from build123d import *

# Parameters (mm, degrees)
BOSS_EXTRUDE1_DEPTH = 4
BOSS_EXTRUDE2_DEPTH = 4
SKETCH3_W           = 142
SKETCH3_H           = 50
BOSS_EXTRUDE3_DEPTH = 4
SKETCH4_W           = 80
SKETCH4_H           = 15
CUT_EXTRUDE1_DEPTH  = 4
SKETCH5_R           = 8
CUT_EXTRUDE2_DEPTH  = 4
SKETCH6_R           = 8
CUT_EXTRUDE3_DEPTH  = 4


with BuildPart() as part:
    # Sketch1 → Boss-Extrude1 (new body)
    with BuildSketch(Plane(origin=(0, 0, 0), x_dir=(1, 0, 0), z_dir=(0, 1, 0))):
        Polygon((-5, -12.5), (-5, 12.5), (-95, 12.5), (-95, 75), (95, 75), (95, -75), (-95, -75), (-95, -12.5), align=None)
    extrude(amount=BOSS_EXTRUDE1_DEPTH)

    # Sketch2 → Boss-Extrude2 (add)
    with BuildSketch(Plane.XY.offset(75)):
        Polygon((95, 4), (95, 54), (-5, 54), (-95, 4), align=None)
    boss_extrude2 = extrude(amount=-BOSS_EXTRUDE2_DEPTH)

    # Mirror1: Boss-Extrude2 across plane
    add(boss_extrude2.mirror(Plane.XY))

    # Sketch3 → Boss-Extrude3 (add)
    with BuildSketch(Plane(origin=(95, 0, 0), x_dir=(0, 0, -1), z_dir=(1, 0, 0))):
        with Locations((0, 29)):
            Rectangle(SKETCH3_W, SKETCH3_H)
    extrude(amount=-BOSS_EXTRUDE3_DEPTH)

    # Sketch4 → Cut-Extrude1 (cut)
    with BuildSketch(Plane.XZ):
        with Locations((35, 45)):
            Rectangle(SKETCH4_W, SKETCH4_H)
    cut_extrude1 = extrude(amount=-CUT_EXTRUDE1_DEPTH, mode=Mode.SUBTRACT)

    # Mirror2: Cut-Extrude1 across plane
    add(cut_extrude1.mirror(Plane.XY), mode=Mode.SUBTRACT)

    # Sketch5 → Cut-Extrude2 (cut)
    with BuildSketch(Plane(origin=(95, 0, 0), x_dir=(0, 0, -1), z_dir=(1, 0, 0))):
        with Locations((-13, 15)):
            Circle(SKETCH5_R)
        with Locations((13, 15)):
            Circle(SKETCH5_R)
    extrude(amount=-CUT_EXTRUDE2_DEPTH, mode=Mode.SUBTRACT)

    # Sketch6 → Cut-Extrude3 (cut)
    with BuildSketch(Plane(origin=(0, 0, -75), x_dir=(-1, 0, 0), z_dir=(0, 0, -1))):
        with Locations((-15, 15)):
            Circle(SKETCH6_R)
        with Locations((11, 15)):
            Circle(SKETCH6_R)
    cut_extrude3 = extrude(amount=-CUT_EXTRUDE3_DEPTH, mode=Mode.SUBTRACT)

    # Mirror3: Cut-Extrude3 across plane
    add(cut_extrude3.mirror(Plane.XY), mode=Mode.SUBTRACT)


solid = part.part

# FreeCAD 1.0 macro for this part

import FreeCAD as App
import Part
import Sketcher

doc = App.newDocument("Part")
body = doc.addObject("PartDesign::Body", "Body")

# Sketch on XZ plane
sketch1 = body.newObject("Sketcher::SketchObject", "Sketch")
sketch1.AttachmentSupport = (doc.getObject("XZ_Plane"), [""])
sketch1.MapMode = "FlatFace"
sketch1.addGeometry([
    Part.LineSegment(App.Vector(-5, -12.5, 0), App.Vector(-5, 12.5, 0)),  # 0
    Part.LineSegment(App.Vector(-5, 12.5, 0), App.Vector(-95, 12.5, 0)),  # 1
    Part.LineSegment(App.Vector(-95, 12.5, 0), App.Vector(-95, 75, 0)),  # 2
    Part.LineSegment(App.Vector(-95, 75, 0), App.Vector(95, 75, 0)),  # 3
    Part.LineSegment(App.Vector(95, 75, 0), App.Vector(95, -75, 0)),  # 4
    Part.LineSegment(App.Vector(95, -75, 0), App.Vector(-95, -75, 0)),  # 5
    Part.LineSegment(App.Vector(-95, -75, 0), App.Vector(-95, -12.5, 0)),  # 6
    Part.LineSegment(App.Vector(-95, -12.5, 0), App.Vector(-5, -12.5, 0)),  # 7
], False)
sketch1.addConstraint([
    Sketcher.Constraint("Coincident", 0, 2, 1, 1),
    Sketcher.Constraint("Coincident", 1, 2, 2, 1),
    Sketcher.Constraint("Coincident", 2, 2, 3, 1),
    Sketcher.Constraint("Coincident", 3, 2, 4, 1),
    Sketcher.Constraint("Coincident", 4, 2, 5, 1),
    Sketcher.Constraint("Coincident", 5, 2, 6, 1),
    Sketcher.Constraint("Coincident", 6, 2, 7, 1),
    Sketcher.Constraint("Coincident", 7, 2, 0, 1),
    Sketcher.Constraint("Vertical", 0),
    Sketcher.Constraint("Horizontal", 1),
    Sketcher.Constraint("Vertical", 2),
    Sketcher.Constraint("Horizontal", 3),
    Sketcher.Constraint("Vertical", 4),
    Sketcher.Constraint("Horizontal", 5),
    Sketcher.Constraint("Vertical", 6),
    Sketcher.Constraint("Horizontal", 7),
    Sketcher.Constraint("Symmetric", 2, 2, 4, 2, -1, 1),
    Sketcher.Constraint("Symmetric", 1, 2, 6, 2, -1),
    Sketcher.Constraint("DistanceX", 1, 2, 1, 1, 90.0),
    Sketcher.Constraint("DistanceX", 3, 1, 3, 2, 190.0),
    Sketcher.Constraint("DistanceY", 0, 1, 0, 2, 25.0),
    Sketcher.Constraint("DistanceY", 4, 2, 4, 1, 150.0),
])
pad1 = body.newObject("PartDesign::Pad", "Pad")
pad1.Profile = sketch1
pad1.Length = 4
pad1.Reversed = True

# Sketch on XY plane
sketch2 = body.newObject("Sketcher::SketchObject", "Sketch001")
sketch2.AttachmentSupport = (doc.getObject("XY_Plane"), [""])
sketch2.MapMode = "FlatFace"
sketch2.AttachmentOffset = App.Placement(App.Vector(0, 0, 75), App.Rotation())
sketch2.addGeometry([
    Part.LineSegment(App.Vector(95, 4, 0), App.Vector(95, 54, 0)),
    Part.LineSegment(App.Vector(95, 54, 0), App.Vector(-5, 54, 0)),
    Part.LineSegment(App.Vector(-5, 54, 0), App.Vector(-95, 4, 0)),
    Part.LineSegment(App.Vector(-95, 4, 0), App.Vector(95, 4, 0)),
], False)
sketch2.addConstraint([
    Sketcher.Constraint("Coincident", 0, 2, 1, 1),
    Sketcher.Constraint("Coincident", 1, 2, 2, 1),
    Sketcher.Constraint("Coincident", 2, 2, 3, 1),
    Sketcher.Constraint("Coincident", 3, 2, 0, 1),
    Sketcher.Constraint("Vertical", 0),
    Sketcher.Constraint("Horizontal", 1),
    Sketcher.Constraint("Horizontal", 3),
    Sketcher.Constraint("DistanceX", 1, 2, 1, 1, 100.0),
    Sketcher.Constraint("DistanceX", 3, 1, 3, 2, 190.0),
    Sketcher.Constraint("DistanceY", 0, 1, 0, 2, 50.0),
    Sketcher.Constraint("DistanceX", -1, 1, 0, 2, 95.0),
    Sketcher.Constraint("DistanceY", -1, 1, 0, 2, 54.0),
])
pad2 = body.newObject("PartDesign::Pad", "Pad001")
pad2.Profile = sketch2
pad2.Length = 4
pad2.Reversed = True
doc.recompute()

mirrored = body.newObject("PartDesign::Mirrored", "Mirrored")
mirrored.Originals = [pad2]
mirrored.MirrorPlane = (doc.getObject("XY_Plane"), [""])
body.Tip = mirrored

# Sketch on YZ plane
sketch3 = body.newObject("Sketcher::SketchObject", "Sketch002")
sketch3.AttachmentSupport = (doc.getObject("YZ_Plane"), [""])
sketch3.MapMode = "FlatFace"
sketch3.AttachmentOffset = App.Placement(App.Vector(0, 0, 95), App.Rotation())
sketch3.addGeometry([
    Part.LineSegment(App.Vector(54, 71, 0), App.Vector(4, 71, 0)),
    Part.LineSegment(App.Vector(4, 71, 0), App.Vector(4, -71, 0)),
    Part.LineSegment(App.Vector(4, -71, 0), App.Vector(54, -71, 0)),
    Part.LineSegment(App.Vector(54, -71, 0), App.Vector(54, 71, 0)),
], False)
sketch3.addConstraint([
    Sketcher.Constraint("Coincident", 0, 2, 1, 1),
    Sketcher.Constraint("Coincident", 1, 2, 2, 1),
    Sketcher.Constraint("Coincident", 2, 2, 3, 1),
    Sketcher.Constraint("Coincident", 3, 2, 0, 1),
    Sketcher.Constraint("Horizontal", 0),
    Sketcher.Constraint("Vertical", 1),
    Sketcher.Constraint("Horizontal", 2),
    Sketcher.Constraint("Vertical", 3),
    Sketcher.Constraint("DistanceX", 0, 2, 0, 1, 50.0),
    Sketcher.Constraint("DistanceY", 1, 2, 1, 1, 142.0),
    Sketcher.Constraint("DistanceX", -1, 1, 0, 2, 4.0),
    Sketcher.Constraint("DistanceY", -1, 1, 0, 2, 71.0),
])
pad3 = body.newObject("PartDesign::Pad", "Pad002")
pad3.Profile = sketch3
pad3.Length = 4
pad3.Reversed = True

# Sketch on XZ plane
sketch4 = body.newObject("Sketcher::SketchObject", "Sketch003")
sketch4.AttachmentSupport = (doc.getObject("XZ_Plane"), [""])
sketch4.MapMode = "FlatFace"
sketch4.addGeometry([
    Part.LineSegment(App.Vector(-5, 52.5, 0), App.Vector(-5, 37.5, 0)),
    Part.LineSegment(App.Vector(-5, 37.5, 0), App.Vector(75, 37.5, 0)),
    Part.LineSegment(App.Vector(75, 37.5, 0), App.Vector(75, 52.5, 0)),
    Part.LineSegment(App.Vector(75, 52.5, 0), App.Vector(-5, 52.5, 0)),
], False)
sketch4.addConstraint([
    Sketcher.Constraint("Coincident", 0, 2, 1, 1),
    Sketcher.Constraint("Coincident", 1, 2, 2, 1),
    Sketcher.Constraint("Coincident", 2, 2, 3, 1),
    Sketcher.Constraint("Coincident", 3, 2, 0, 1),
    Sketcher.Constraint("Vertical", 0),
    Sketcher.Constraint("Horizontal", 1),
    Sketcher.Constraint("Vertical", 2),
    Sketcher.Constraint("Horizontal", 3),
    Sketcher.Constraint("DistanceX", 1, 1, 1, 2, 80.0),
    Sketcher.Constraint("DistanceY", 0, 2, 0, 1, 15.0),
    Sketcher.Constraint("DistanceX", 0, 2, -1, 1, 5.0),
    Sketcher.Constraint("DistanceY", -1, 1, 0, 2, 37.5),
])
pocket1 = body.newObject("PartDesign::Pocket", "Pocket")
pocket1.Profile = sketch4
pocket1.Length = 4
doc.recompute()

mirrored2 = body.newObject("PartDesign::Mirrored", "Mirrored001")
mirrored2.Originals = [pocket1]
mirrored2.MirrorPlane = (doc.getObject("XY_Plane"), [""])
body.Tip = mirrored2

# Sketch on YZ plane
sketch5 = body.newObject("Sketcher::SketchObject", "Sketch004")
sketch5.AttachmentSupport = (doc.getObject("YZ_Plane"), [""])
sketch5.MapMode = "FlatFace"
sketch5.AttachmentOffset = App.Placement(App.Vector(0, 0, 95), App.Rotation())
sketch5.addGeometry([
    Part.Circle(App.Vector(15, 13, 0), App.Vector(0, 0, 1), 8),
    Part.Circle(App.Vector(15, -13, 0), App.Vector(0, 0, 1), 8),
], False)
sketch5.addConstraint([
    Sketcher.Constraint("Equal", 0, 1),
    Sketcher.Constraint("Symmetric", 0, 3, 1, 3, -1),
    Sketcher.Constraint("Diameter", 0, 16.0),
    Sketcher.Constraint("DistanceX", -1, 1, 0, 3, 15.0),
    Sketcher.Constraint("DistanceY", -1, 1, 0, 3, 13.0),
])
pocket2 = body.newObject("PartDesign::Pocket", "Pocket001")
pocket2.Profile = sketch5
pocket2.Length = 4

# Sketch on XY plane
sketch6 = body.newObject("Sketcher::SketchObject", "Sketch005")
sketch6.AttachmentSupport = (doc.getObject("XY_Plane"), [""])
sketch6.MapMode = "FlatFace"
sketch6.AttachmentOffset = App.Placement(App.Vector(0, 0, -75), App.Rotation())
sketch6.addGeometry([
    Part.Circle(App.Vector(15, 15, 0), App.Vector(0, 0, 1), 8),
    Part.Circle(App.Vector(-11, 15, 0), App.Vector(0, 0, 1), 8),
], False)
sketch6.addConstraint([
    Sketcher.Constraint("Equal", 0, 1),
    Sketcher.Constraint("Horizontal", 0, 3, 1, 3),
    Sketcher.Constraint("Diameter", 0, 16.0),
    Sketcher.Constraint("DistanceX", -1, 1, 0, 3, 15.0),
    Sketcher.Constraint("DistanceY", -1, 1, 0, 3, 15.0),
    Sketcher.Constraint("DistanceX", 1, 3, -1, 1, 11.0),
])
pocket3 = body.newObject("PartDesign::Pocket", "Pocket002")
pocket3.Profile = sketch6
pocket3.Length = 4
pocket3.Reversed = True
doc.recompute()

mirrored3 = body.newObject("PartDesign::Mirrored", "Mirrored002")
mirrored3.Originals = [pocket3]
mirrored3.MirrorPlane = (doc.getObject("XY_Plane"), [""])
body.Tip = mirrored3

doc.recompute()
